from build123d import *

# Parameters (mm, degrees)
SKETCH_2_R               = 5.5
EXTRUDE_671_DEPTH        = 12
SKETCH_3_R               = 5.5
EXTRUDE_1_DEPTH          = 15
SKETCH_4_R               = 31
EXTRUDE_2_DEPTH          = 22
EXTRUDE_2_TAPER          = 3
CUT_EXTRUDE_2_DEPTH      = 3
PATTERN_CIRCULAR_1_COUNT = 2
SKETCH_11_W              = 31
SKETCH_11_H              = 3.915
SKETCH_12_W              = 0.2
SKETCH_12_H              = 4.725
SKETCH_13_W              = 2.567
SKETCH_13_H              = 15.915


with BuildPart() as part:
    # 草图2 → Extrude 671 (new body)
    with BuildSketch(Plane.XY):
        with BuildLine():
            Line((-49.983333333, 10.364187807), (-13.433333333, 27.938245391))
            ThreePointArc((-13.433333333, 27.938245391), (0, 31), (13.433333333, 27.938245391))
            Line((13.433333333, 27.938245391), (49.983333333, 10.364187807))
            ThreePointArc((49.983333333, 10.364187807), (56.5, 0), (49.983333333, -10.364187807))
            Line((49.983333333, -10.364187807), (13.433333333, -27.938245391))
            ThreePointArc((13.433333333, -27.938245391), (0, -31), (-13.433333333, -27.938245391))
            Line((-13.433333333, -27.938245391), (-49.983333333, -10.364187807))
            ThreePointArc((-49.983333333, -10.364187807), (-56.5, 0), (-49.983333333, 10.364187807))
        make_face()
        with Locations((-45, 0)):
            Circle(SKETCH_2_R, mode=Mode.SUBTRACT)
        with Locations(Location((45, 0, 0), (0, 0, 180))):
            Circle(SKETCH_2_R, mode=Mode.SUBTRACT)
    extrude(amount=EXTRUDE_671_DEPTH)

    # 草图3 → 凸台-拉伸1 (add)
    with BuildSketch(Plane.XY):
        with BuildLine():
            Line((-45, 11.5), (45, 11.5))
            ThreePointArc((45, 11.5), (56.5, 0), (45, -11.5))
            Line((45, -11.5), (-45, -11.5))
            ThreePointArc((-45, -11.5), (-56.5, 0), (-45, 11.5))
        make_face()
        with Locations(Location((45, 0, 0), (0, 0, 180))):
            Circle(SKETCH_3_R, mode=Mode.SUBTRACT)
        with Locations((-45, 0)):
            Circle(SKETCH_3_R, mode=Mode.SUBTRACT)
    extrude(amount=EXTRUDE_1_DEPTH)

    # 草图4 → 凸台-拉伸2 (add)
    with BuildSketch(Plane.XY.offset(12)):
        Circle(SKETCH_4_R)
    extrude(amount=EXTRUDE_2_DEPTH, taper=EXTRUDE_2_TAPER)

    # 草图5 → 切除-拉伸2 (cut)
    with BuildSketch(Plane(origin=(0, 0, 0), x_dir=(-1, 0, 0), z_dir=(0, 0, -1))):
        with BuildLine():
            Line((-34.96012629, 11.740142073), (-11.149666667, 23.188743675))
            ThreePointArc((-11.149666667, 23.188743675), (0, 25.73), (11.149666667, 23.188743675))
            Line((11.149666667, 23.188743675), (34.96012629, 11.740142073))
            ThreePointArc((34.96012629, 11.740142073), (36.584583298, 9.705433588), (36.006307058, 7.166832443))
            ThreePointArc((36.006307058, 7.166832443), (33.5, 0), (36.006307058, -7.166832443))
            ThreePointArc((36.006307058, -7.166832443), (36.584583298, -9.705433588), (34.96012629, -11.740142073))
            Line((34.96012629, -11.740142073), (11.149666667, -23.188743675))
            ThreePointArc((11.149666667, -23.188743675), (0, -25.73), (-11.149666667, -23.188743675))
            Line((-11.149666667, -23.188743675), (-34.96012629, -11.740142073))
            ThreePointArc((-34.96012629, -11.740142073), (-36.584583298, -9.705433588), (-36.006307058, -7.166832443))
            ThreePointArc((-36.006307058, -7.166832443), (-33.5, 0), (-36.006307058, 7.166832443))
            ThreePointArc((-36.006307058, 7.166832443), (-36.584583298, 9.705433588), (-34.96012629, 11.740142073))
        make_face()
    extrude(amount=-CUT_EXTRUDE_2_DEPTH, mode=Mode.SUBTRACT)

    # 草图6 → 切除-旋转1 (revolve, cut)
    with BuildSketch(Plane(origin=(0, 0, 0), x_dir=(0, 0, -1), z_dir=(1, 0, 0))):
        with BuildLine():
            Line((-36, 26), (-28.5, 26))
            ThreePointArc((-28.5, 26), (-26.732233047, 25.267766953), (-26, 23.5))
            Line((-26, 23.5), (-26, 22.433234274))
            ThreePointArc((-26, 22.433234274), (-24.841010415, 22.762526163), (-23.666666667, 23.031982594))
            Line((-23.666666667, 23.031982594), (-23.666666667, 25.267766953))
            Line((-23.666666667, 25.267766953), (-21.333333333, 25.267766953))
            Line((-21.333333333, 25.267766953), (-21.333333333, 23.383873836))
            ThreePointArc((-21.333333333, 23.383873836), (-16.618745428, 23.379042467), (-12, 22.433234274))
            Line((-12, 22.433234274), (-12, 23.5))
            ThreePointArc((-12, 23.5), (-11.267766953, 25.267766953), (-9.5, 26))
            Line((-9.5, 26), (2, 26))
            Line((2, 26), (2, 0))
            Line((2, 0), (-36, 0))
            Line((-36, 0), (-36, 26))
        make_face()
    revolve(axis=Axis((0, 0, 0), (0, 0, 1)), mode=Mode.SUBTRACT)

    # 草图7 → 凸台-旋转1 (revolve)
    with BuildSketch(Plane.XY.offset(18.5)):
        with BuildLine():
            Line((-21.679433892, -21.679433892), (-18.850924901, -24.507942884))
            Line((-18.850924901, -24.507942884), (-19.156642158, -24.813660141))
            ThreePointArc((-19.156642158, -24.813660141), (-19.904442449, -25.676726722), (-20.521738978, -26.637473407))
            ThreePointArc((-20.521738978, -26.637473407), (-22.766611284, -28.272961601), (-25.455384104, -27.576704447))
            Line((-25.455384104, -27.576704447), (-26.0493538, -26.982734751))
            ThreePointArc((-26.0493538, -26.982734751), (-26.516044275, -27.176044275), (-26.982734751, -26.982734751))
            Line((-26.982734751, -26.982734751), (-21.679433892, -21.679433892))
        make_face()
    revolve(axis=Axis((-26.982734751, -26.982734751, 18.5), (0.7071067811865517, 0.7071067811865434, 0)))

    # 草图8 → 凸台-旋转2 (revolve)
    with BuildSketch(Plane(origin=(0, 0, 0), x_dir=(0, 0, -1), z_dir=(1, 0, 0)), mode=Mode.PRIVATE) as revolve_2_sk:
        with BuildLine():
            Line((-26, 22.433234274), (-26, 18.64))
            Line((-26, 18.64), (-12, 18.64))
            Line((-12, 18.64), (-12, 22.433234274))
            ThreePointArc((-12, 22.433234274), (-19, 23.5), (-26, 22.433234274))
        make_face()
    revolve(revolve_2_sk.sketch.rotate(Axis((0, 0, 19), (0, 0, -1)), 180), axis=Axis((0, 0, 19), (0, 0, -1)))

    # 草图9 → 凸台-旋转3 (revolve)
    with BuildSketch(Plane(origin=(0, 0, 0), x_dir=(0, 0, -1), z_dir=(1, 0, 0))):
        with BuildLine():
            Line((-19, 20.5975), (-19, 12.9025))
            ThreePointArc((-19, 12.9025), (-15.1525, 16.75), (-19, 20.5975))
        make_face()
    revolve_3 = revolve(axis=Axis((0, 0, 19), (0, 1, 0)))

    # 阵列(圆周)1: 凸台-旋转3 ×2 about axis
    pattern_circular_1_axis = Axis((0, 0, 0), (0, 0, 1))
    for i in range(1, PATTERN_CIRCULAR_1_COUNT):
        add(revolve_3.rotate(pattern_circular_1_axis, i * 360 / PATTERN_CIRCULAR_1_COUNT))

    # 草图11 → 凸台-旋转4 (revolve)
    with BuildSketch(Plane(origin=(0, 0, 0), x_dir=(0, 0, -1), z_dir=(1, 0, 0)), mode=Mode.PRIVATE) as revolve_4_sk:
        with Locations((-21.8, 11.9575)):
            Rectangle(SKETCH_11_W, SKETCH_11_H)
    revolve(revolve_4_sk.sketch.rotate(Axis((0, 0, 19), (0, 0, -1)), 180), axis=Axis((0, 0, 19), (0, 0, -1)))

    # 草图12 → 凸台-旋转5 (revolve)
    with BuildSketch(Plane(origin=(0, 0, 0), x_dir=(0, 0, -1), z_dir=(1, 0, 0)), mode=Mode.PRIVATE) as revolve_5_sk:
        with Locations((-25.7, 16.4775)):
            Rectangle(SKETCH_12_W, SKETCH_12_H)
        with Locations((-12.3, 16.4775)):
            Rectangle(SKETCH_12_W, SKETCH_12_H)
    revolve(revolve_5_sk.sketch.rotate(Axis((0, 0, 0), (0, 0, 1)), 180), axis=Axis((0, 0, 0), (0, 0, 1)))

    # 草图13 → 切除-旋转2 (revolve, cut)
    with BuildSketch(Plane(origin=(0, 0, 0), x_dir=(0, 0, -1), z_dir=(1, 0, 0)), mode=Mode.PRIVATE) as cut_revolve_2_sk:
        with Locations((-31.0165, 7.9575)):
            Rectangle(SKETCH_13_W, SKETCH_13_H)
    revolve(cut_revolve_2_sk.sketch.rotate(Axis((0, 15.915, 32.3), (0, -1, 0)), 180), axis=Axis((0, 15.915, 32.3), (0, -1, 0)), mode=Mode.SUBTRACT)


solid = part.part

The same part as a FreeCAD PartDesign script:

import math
import FreeCAD as App
import Part
import Sketcher
from FreeCAD import Vector
Q = App.Units.Quantity


def add_polygon(sketch, points):
    """Adds a closed chain of lines whose ends are joined by coincident constraints."""
    first, n = sketch.GeometryCount, len(points)
    for a, b in zip(points, points[1:] + points[:1]):
        sketch.addGeometry(Part.LineSegment(App.Vector(*a, 0), App.Vector(*b, 0)), False)
    for i in range(n):
        sketch.addConstraint(Sketcher.Constraint("Coincident", first + i, 2, first + (i + 1) % n, 1))

doc = App.newDocument("Part")
body = doc.addObject("PartDesign::Body", "Body")

# Sketch on XY plane
sketch1 = body.newObject("Sketcher::SketchObject", "Sketch")
sketch1.AttachmentSupport = (doc.getObject("XY_Plane"), [""])
sketch1.MapMode = "FlatFace"
sketch1.addGeometry(Part.LineSegment(Vector(-13.433333, 27.938245, 0), Vector(-49.983333, 10.364188, 0)), False)
sketch1.addGeometry(Part.ArcOfCircle(Part.Circle(Vector(-45, 0, 0), Vector(0, 0, 1), 11.5), math.radians(115.679289), math.radians(244.320711)), False)
sketch1.addGeometry(Part.LineSegment(Vector(-49.983333, -10.364188, 0), Vector(-13.433333, -27.938245, 0)), False)
sketch1.addGeometry(Part.ArcOfCircle(Part.Circle(Vector(0, 0, 0), Vector(0, 0, 1), 31), math.radians(-115.679289), math.radians(-64.320711)), False)
sketch1.addGeometry(Part.LineSegment(Vector(13.433333, -27.938245, 0), Vector(49.983333, -10.364188, 0)), False)
sketch1.addGeometry(Part.ArcOfCircle(Part.Circle(Vector(45, 0, 0), Vector(0, 0, 1), 11.5), math.radians(-64.320711), math.radians(64.320711)), False)
sketch1.addGeometry(Part.LineSegment(Vector(49.983333, 10.364188, 0), Vector(13.433333, 27.938245, 0)), False)
sketch1.addGeometry(Part.ArcOfCircle(Part.Circle(Vector(0, 0, 0), Vector(0, 0, 1), 31), math.radians(64.320711), math.radians(115.679289)), False)
sketch1.addGeometry(Part.Circle(Vector(45, 0, 0), Vector(0, 0, 1), 5.5), False)
sketch1.addGeometry(Part.Circle(Vector(-45, 0, 0), Vector(0, 0, 1), 5.5), False)
sketch1.addConstraint(Sketcher.Constraint("Tangent", 0, 2, 1, 1))
sketch1.addConstraint(Sketcher.Constraint("Tangent", 1, 2, 2, 1))
sketch1.addConstraint(Sketcher.Constraint("Tangent", 2, 2, 3, 1))
sketch1.addConstraint(Sketcher.Constraint("Tangent", 3, 2, 4, 1))
sketch1.addConstraint(Sketcher.Constraint("Tangent", 4, 2, 5, 1))
sketch1.addConstraint(Sketcher.Constraint("Tangent", 5, 2, 6, 1))
sketch1.addConstraint(Sketcher.Constraint("Tangent", 6, 2, 7, 1))
sketch1.addConstraint(Sketcher.Constraint("Tangent", 7, 2, 0, 1))
sketch1.addConstraint(Sketcher.Constraint("Coincident", 3, 3, -1, 1))
sketch1.addConstraint(Sketcher.Constraint("Coincident", 7, 3, -1, 1))
sketch1.addConstraint(Sketcher.Constraint("Coincident", 8, 3, 5, 3))
sketch1.addConstraint(Sketcher.Constraint("Coincident", 9, 3, 1, 3))
sketch1.addConstraint(Sketcher.Constraint("Equal", 1, 5))
sketch1.addConstraint(Sketcher.Constraint("Equal", 3, 7))
sketch1.addConstraint(Sketcher.Constraint("Equal", 8, 9))
sketch1.addConstraint(Sketcher.Constraint("Symmetric", 1, 3, 5, 3, -1, 1))
sketch1.addConstraint(Sketcher.Constraint("PointOnObject", 1, 3, -1))
sketch1.addConstraint(Sketcher.Constraint("Diameter", 8, Q("11 mm")))
sketch1.addConstraint(Sketcher.Constraint("Radius", 3, Q("31 mm")))
sketch1.addConstraint(Sketcher.Constraint("Radius", 1, Q("11.5 mm")))
sketch1.addConstraint(Sketcher.Constraint("DistanceX", 1, 3, -1, 1, Q("45 mm")))
pad1 = body.newObject("PartDesign::Pad", "Pad")
pad1.Profile = sketch1
pad1.Length = 12

# Sketch on XY plane
sketch2 = body.newObject("Sketcher::SketchObject", "Sketch001")
sketch2.AttachmentSupport = (doc.getObject("XY_Plane"), [""])
sketch2.MapMode = "FlatFace"
sketch2.addGeometry(Part.LineSegment(Vector(45, 11.5, 0), Vector(-45, 11.5, 0)), False)
sketch2.addGeometry(Part.ArcOfCircle(Part.Circle(Vector(-45, 0, 0), Vector(0, 0, 1), 11.5), math.radians(90), math.radians(270)), False)
sketch2.addGeometry(Part.LineSegment(Vector(-45, -11.5, 0), Vector(45, -11.5, 0)), False)
sketch2.addGeometry(Part.ArcOfCircle(Part.Circle(Vector(45, 0, 0), Vector(0, 0, 1), 11.5), math.radians(-90), math.radians(90)), False)
sketch2.addGeometry(Part.Circle(Vector(45, 0, 0), Vector(0, 0, 1), 5.5), False)
sketch2.addGeometry(Part.Circle(Vector(-45, 0, 0), Vector(0, 0, 1), 5.5), False)
sketch2.addConstraint(Sketcher.Constraint("Tangent", 0, 2, 1, 1))
sketch2.addConstraint(Sketcher.Constraint("Tangent", 1, 2, 2, 1))
sketch2.addConstraint(Sketcher.Constraint("Tangent", 2, 2, 3, 1))
sketch2.addConstraint(Sketcher.Constraint("Tangent", 3, 2, 0, 1))
sketch2.addConstraint(Sketcher.Constraint("Horizontal", 0))
sketch2.addConstraint(Sketcher.Constraint("Horizontal", 2))
sketch2.addConstraint(Sketcher.Constraint("Coincident", 4, 3, 3, 3))
sketch2.addConstraint(Sketcher.Constraint("Coincident", 5, 3, 1, 3))
sketch2.addConstraint(Sketcher.Constraint("Equal", 4, 5))
sketch2.addConstraint(Sketcher.Constraint("Symmetric", 1, 3, 3, 3, -1, 1))
sketch2.addConstraint(Sketcher.Constraint("Diameter", 4, Q("11 mm")))
sketch2.addConstraint(Sketcher.Constraint("Radius", 1, Q("11.5 mm")))
sketch2.addConstraint(Sketcher.Constraint("DistanceX", 0, 2, 0, 1, Q("90 mm")))
pad2 = body.newObject("PartDesign::Pad", "Pad001")
pad2.Profile = sketch2
pad2.Length = 15

# Sketch on XY plane
sketch3 = body.newObject("Sketcher::SketchObject", "Sketch002")
sketch3.AttachmentSupport = (doc.getObject("XY_Plane"), [""])
sketch3.MapMode = "FlatFace"
sketch3.AttachmentOffset = App.Placement(Vector(0, 0, 12), App.Rotation())
sketch3.addGeometry(Part.Circle(Vector(0, 0, 0), Vector(0, 0, 1), 31), False)
sketch3.addConstraint(Sketcher.Constraint("Coincident", 0, 3, -1, 1))
sketch3.addConstraint(Sketcher.Constraint("Diameter", 0, Q("62 mm")))
pad3 = body.newObject("PartDesign::Pad", "Pad002")
pad3.Profile = sketch3
pad3.Length = 22
pad3.TaperAngle = -3

# Sketch on XY plane
sketch4 = body.newObject("Sketcher::SketchObject", "Sketch003")
sketch4.AttachmentSupport = (doc.getObject("XY_Plane"), [""])
sketch4.MapMode = "FlatFace"
sketch4.addGeometry(Part.LineSegment(Vector(11.149667, 23.188744, 0), Vector(34.960126, 11.740142, 0)), False)
sketch4.addGeometry(Part.ArcOfCircle(Part.Circle(Vector(33.660126, 9.036441, 0), Vector(0, 0, 1), 3), math.radians(-38.550401), math.radians(64.320711)), False)
sketch4.addGeometry(Part.ArcOfCircle(Part.Circle(Vector(45, 0, 0), Vector(0, 0, 1), 11.5), math.radians(141.449599), math.radians(218.550401)), False)
sketch4.addGeometry(Part.ArcOfCircle(Part.Circle(Vector(33.660126, -9.036441, 0), Vector(0, 0, 1), 3), math.radians(-64.320711), math.radians(38.550401)), False)
sketch4.addGeometry(Part.LineSegment(Vector(34.960126, -11.740142, 0), Vector(11.149667, -23.188744, 0)), False)
sketch4.addGeometry(Part.ArcOfCircle(Part.Circle(Vector(0, 0, 0), Vector(0, 0, 1), 25.73), math.radians(-115.679289), math.radians(-64.320711)), False)
sketch4.addGeometry(Part.LineSegment(Vector(-11.149667, -23.188744, 0), Vector(-34.960126, -11.740142, 0)), False)
sketch4.addGeometry(Part.ArcOfCircle(Part.Circle(Vector(-33.660126, -9.036441, 0), Vector(0, 0, 1), 3), math.radians(141.449599), math.radians(244.320711)), False)
sketch4.addGeometry(Part.ArcOfCircle(Part.Circle(Vector(-45, 0, 0), Vector(0, 0, 1), 11.5), math.radians(-38.550401), math.radians(38.550401)), False)
sketch4.addGeometry(Part.ArcOfCircle(Part.Circle(Vector(-33.660126, 9.036441, 0), Vector(0, 0, 1), 3), math.radians(115.679289), math.radians(218.550401)), False)
sketch4.addGeometry(Part.LineSegment(Vector(-34.960126, 11.740142, 0), Vector(-11.149667, 23.188744, 0)), False)
sketch4.addGeometry(Part.ArcOfCircle(Part.Circle(Vector(0, 0, 0), Vector(0, 0, 1), 25.73), math.radians(64.320711), math.radians(115.679289)), False)
sketch4.addConstraint(Sketcher.Constraint("Tangent", 0, 2, 1, 2))
sketch4.addConstraint(Sketcher.Constraint("Tangent", 1, 1, 2, 1))
sketch4.addConstraint(Sketcher.Constraint("Tangent", 2, 2, 3, 2))
sketch4.addConstraint(Sketcher.Constraint("Tangent", 3, 1, 4, 1))
sketch4.addConstraint(Sketcher.Constraint("Tangent", 4, 2, 5, 2))
sketch4.addConstraint(Sketcher.Constraint("Tangent", 5, 1, 6, 1))
sketch4.addConstraint(Sketcher.Constraint("Tangent", 6, 2, 7, 2))
sketch4.addConstraint(Sketcher.Constraint("Tangent", 7, 1, 8, 1))
sketch4.addConstraint(Sketcher.Constraint("Tangent", 8, 2, 9, 2))
sketch4.addConstraint(Sketcher.Constraint("Tangent", 9, 1, 10, 1))
sketch4.addConstraint(Sketcher.Constraint("Tangent", 10, 2, 11, 2))
sketch4.addConstraint(Sketcher.Constraint("Tangent", 11, 1, 0, 1))
sketch4.addConstraint(Sketcher.Constraint("Coincident", 5, 3, -1, 1))
sketch4.addConstraint(Sketcher.Constraint("Coincident", 11, 3, -1, 1))
sketch4.addConstraint(Sketcher.Constraint("Equal", 1, 3))
sketch4.addConstraint(Sketcher.Constraint("Equal", 3, 7))
sketch4.addConstraint(Sketcher.Constraint("Equal", 2, 8))
sketch4.addConstraint(Sketcher.Constraint("Equal", 7, 9))
sketch4.addConstraint(Sketcher.Constraint("Equal", 5, 11))
sketch4.addConstraint(Sketcher.Constraint("Symmetric", 1, 3, 7, 3, -1, 1))
sketch4.addConstraint(Sketcher.Constraint("Symmetric", 3, 3, 9, 3, -1, 1))
sketch4.addConstraint(Sketcher.Constraint("Symmetric", 3, 3, 7, 3, -2))
sketch4.addConstraint(Sketcher.Constraint("Radius", 1, Q("3 mm")))
sketch4.addConstraint(Sketcher.Constraint("Radius", 2, Q("11.5 mm")))
sketch4.addConstraint(Sketcher.Constraint("Radius", 5, Q("25.73 mm")))
sketch4.addConstraint(Sketcher.Constraint("DistanceX", -1, 1, 2, 3, Q("45 mm")))
sketch4.addConstraint(Sketcher.Constraint("DistanceX", 1, 3, 0, 2, Q("1.3 mm")))
pocket1 = body.newObject("PartDesign::Pocket", "Pocket")
pocket1.Profile = sketch4
pocket1.Length = 3
pocket1.Reversed = True

# Sketch on YZ plane
sketch5 = body.newObject("Sketcher::SketchObject", "Sketch004")
sketch5.AttachmentSupport = (doc.getObject("YZ_Plane"), [""])
sketch5.MapMode = "FlatFace"
sketch5.addGeometry(Part.LineSegment(Vector(26, 28.5, 0), Vector(26, 36, 0)), False)
sketch5.addGeometry(Part.LineSegment(Vector(26, 36, 0), Vector(0, 36, 0)), False)
sketch5.addGeometry(Part.LineSegment(Vector(0, 36, 0), Vector(0, -2, 0)), False)
sketch5.addGeometry(Part.LineSegment(Vector(0, -2, 0), Vector(26, -2, 0)), False)
sketch5.addGeometry(Part.LineSegment(Vector(26, -2, 0), Vector(26, 9.5, 0)), False)
sketch5.addGeometry(Part.ArcOfCircle(Part.Circle(Vector(23.5, 9.5, 0), Vector(0, 0, 1), 2.5), math.radians(0), math.radians(90)), False)
sketch5.addGeometry(Part.LineSegment(Vector(23.5, 12, 0), Vector(22.433234, 12, 0)), False)
sketch5.addGeometry(Part.ArcOfCircle(Part.Circle(Vector(0, 19, 0), Vector(0, 0, 1), 23.5), math.radians(-17.329856), math.radians(5.698332)), False)
sketch5.addGeometry(Part.LineSegment(Vector(23.383874, 21.333333, 0), Vector(25.267767, 21.333333, 0)), False)
sketch5.addGeometry(Part.LineSegment(Vector(25.267767, 21.333333, 0), Vector(25.267767, 23.666667, 0)), False)
sketch5.addGeometry(Part.LineSegment(Vector(25.267767, 23.666667, 0), Vector(23.031983, 23.666667, 0)), False)
sketch5.addGeometry(Part.ArcOfCircle(Part.Circle(Vector(0, 19, 0), Vector(0, 0, 1), 23.5), math.radians(11.454025), math.radians(17.329856)), False)
sketch5.addGeometry(Part.LineSegment(Vector(22.433234, 26, 0), Vector(23.5, 26, 0)), False)
sketch5.addGeometry(Part.ArcOfCircle(Part.Circle(Vector(23.5, 28.5, 0), Vector(0, 0, 1), 2.5), math.radians(-90), math.radians(0)), False)
sketch5.addConstraint(Sketcher.Constraint("Coincident", 0, 2, 1, 1))
sketch5.addConstraint(Sketcher.Constraint("Coincident", 1, 2, 2, 1))
sketch5.addConstraint(Sketcher.Constraint("Coincident", 2, 2, 3, 1))
sketch5.addConstraint(Sketcher.Constraint("Coincident", 3, 2, 4, 1))
sketch5.addConstraint(Sketcher.Constraint("Tangent", 4, 2, 5, 1))
sketch5.addConstraint(Sketcher.Constraint("Tangent", 5, 2, 6, 1))
sketch5.addConstraint(Sketcher.Constraint("Coincident", 6, 2, 7, 1))
sketch5.addConstraint(Sketcher.Constraint("Coincident", 7, 2, 8, 1))
sketch5.addConstraint(Sketcher.Constraint("Coincident", 8, 2, 9, 1))
sketch5.addConstraint(Sketcher.Constraint("Coincident", 9, 2, 10, 1))
sketch5.addConstraint(Sketcher.Constraint("Coincident", 10, 2, 11, 1))
sketch5.addConstraint(Sketcher.Constraint("Coincident", 11, 2, 12, 1))
sketch5.addConstraint(Sketcher.Constraint("Tangent", 12, 2, 13, 1))
sketch5.addConstraint(Sketcher.Constraint("Tangent", 13, 2, 0, 1))
sketch5.addConstraint(Sketcher.Constraint("Vertical", 0))
sketch5.addConstraint(Sketcher.Constraint("Horizontal", 1))
sketch5.addConstraint(Sketcher.Constraint("Vertical", 2))
sketch5.addConstraint(Sketcher.Constraint("Horizontal", 3))
sketch5.addConstraint(Sketcher.Constraint("Vertical", 4))
sketch5.addConstraint(Sketcher.Constraint("Horizontal", 6))
sketch5.addConstraint(Sketcher.Constraint("Horizontal", 8))
sketch5.addConstraint(Sketcher.Constraint("Vertical", 9))
sketch5.addConstraint(Sketcher.Constraint("Horizontal", 10))
sketch5.addConstraint(Sketcher.Constraint("Horizontal", 12))
sketch5.addConstraint(Sketcher.Constraint("Coincident", 11, 3, 7, 3))
sketch5.addConstraint(Sketcher.Constraint("Equal", 7, 11))
sketch5.addConstraint(Sketcher.Constraint("Equal", 5, 13))
sketch5.addConstraint(Sketcher.Constraint("PointOnObject", 7, 3, -2))
sketch5.addConstraint(Sketcher.Constraint("PointOnObject", 1, 2, -2))
sketch5.addConstraint(Sketcher.Constraint("Vertical", 5, 3, 13, 3))
sketch5.addConstraint(Sketcher.Constraint("Vertical", 6, 2, 11, 2))
sketch5.addConstraint(Sketcher.Constraint("Radius", 5, Q("2.5 mm")))
sketch5.addConstraint(Sketcher.Constraint("Radius", 7, Q("23.5 mm")))
sketch5.addConstraint(Sketcher.Constraint("DistanceX", 1, 2, 1, 1, Q("26 mm")))
sketch5.addConstraint(Sketcher.Constraint("DistanceY", 2, 2, 2, 1, Q("38 mm")))
sketch5.addConstraint(Sketcher.Constraint("DistanceY", 0, 1, 0, 2, Q("7.5 mm")))
sketch5.addConstraint(Sketcher.Constraint("DistanceY", 4, 1, 4, 2, Q("11.5 mm")))
sketch5.addConstraint(Sketcher.Constraint("DistanceY", -1, 1, 7, 3, Q("19 mm")))
sketch5.addConstraint(Sketcher.Constraint("DistanceX", 8, 1, 8, 2, Q("1.883893 mm")))
sketch5.addConstraint(Sketcher.Constraint("DistanceX", 10, 2, 10, 1, Q("2.235784 mm")))
sketch5.addConstraint(Sketcher.Constraint("DistanceY", 9, 1, 9, 2, Q("2.333333 mm")))
groove = body.newObject("PartDesign::Groove", "Groove")
groove.Profile = sketch5
groove.ReferenceAxis = (sketch5, ["V_Axis"])
groove.Angle = 360

# Sketch on XY plane
sketch6 = body.newObject("Sketcher::SketchObject", "Sketch005")
sketch6.AttachmentSupport = (doc.getObject("XY_Plane"), [""])
sketch6.MapMode = "FlatFace"
sketch6.AttachmentOffset = App.Placement(Vector(0, 0, 18.5), App.Rotation())
sketch6.addGeometry(Part.LineSegment(Vector(-18.850925, -24.507943, 0), Vector(-21.679434, -21.679434, 0)), False)
sketch6.addGeometry(Part.LineSegment(Vector(-21.679434, -21.679434, 0), Vector(-26.982735, -26.982735, 0)), False)
sketch6.addGeometry(Part.ArcOfCircle(Part.Circle(Vector(-26.516044, -26.516044, 0), Vector(0, 0, 1), 0.66), math.radians(-135), math.radians(-45)), False)
sketch6.addGeometry(Part.LineSegment(Vector(-26.049354, -26.982735, 0), Vector(-25.455384, -27.576704, 0)), False)
sketch6.addGeometry(Part.ArcOfCircle(Part.Circle(Vector(-23.374407, -25.080301, 0), Vector(0, 0, 1), 3.25), math.radians(-129.814251), math.radians(-28.628604)), False)
sketch6.addGeometry(Part.ArcOfCircle(Part.Circle(Vector(-13.499788, -30.470514, 0), Vector(0, 0, 1), 8), math.radians(135), math.radians(151.371396)), False)
sketch6.addGeometry(Part.LineSegment(Vector(-19.156642, -24.81366, 0), Vector(-18.850925, -24.507943, 0)), False)
sketch6.addGeometry(Part.LineSegment(Vector(-26.982735, -26.982735, 0), Vector(-21.679434, -21.679434, 0)), True)  # axis
sketch6.addConstraint(Sketcher.Constraint("Coincident", 0, 2, 1, 1))
sketch6.addConstraint(Sketcher.Constraint("Coincident", 1, 2, 2, 1))
sketch6.addConstraint(Sketcher.Constraint("Coincident", 2, 2, 3, 1))
sketch6.addConstraint(Sketcher.Constraint("Coincident", 3, 2, 4, 1))
sketch6.addConstraint(Sketcher.Constraint("Tangent", 4, 2, 5, 2))
sketch6.addConstraint(Sketcher.Constraint("Tangent", 5, 1, 6, 1))
sketch6.addConstraint(Sketcher.Constraint("Coincident", 6, 2, 0, 1))
sketch6.addConstraint(Sketcher.Constraint("Coincident", 7, 1, 1, 2))
sketch6.addConstraint(Sketcher.Constraint("Coincident", 7, 2, 0, 2))
sketch6.addConstraint(Sketcher.Constraint("Perpendicular", 0, 1))
sketch6.addConstraint(Sketcher.Constraint("Perpendicular", 1, 3))
sketch6.addConstraint(Sketcher.Constraint("Perpendicular", 3, 6))
sketch6.addConstraint(Sketcher.Constraint("Horizontal", 1, 2, 2, 2))
sketch6.addConstraint(Sketcher.Constraint("Radius", 5, Q("8 mm")))
sketch6.addConstraint(Sketcher.Constraint("Angle", 0, Q("135 deg")))
sketch6.addConstraint(Sketcher.Constraint("Radius", 2, Q("0.66 mm")))
sketch6.addConstraint(Sketcher.Constraint("Radius", 4, Q("3.25 mm")))
sketch6.addConstraint(Sketcher.Constraint("Distance", 1, Q("7.5 mm")))
sketch6.addConstraint(Sketcher.Constraint("Distance", 3, Q("0.84 mm")))
sketch6.addConstraint(Sketcher.Constraint("DistanceY", 4, 3, -1, 1, Q("25.080301 mm")))
sketch6.addConstraint(Sketcher.Constraint("Distance", 6, Q("0.432349 mm")))
sketch6.addConstraint(Sketcher.Constraint("DistanceX", 4, 2, -1, 1, Q("20.521739 mm")))
sketch6.addConstraint(Sketcher.Constraint("DistanceY", 5, 1, -1, 1, Q("24.81366 mm")))
sketch6.addConstraint(Sketcher.Constraint("DistanceY", 5, 3, 2, 3, Q("3.95447 mm")))
revolution = body.newObject("PartDesign::Revolution", "Revolution")
revolution.Profile = sketch6
revolution.ReferenceAxis = (sketch6, ["Axis0"])
revolution.Angle = 360

# Sketch on YZ plane
sketch7 = body.newObject("Sketcher::SketchObject", "Sketch006")
sketch7.AttachmentSupport = (doc.getObject("YZ_Plane"), [""])
sketch7.MapMode = "FlatFace"
sketch7.addGeometry(Part.LineSegment(Vector(22.433234, 26, 0), Vector(18.64, 26, 0)), False)
sketch7.addGeometry(Part.LineSegment(Vector(18.64, 26, 0), Vector(18.64, 12, 0)), False)
sketch7.addGeometry(Part.LineSegment(Vector(18.64, 12, 0), Vector(22.433234, 12, 0)), False)
sketch7.addGeometry(Part.ArcOfCircle(Part.Circle(Vector(0, 19, 0), Vector(0, 0, 1), 23.5), math.radians(-17.329856), math.radians(17.329856)), False)
sketch7.addConstraint(Sketcher.Constraint("Coincident", 0, 2, 1, 1))
sketch7.addConstraint(Sketcher.Constraint("Coincident", 1, 2, 2, 1))
sketch7.addConstraint(Sketcher.Constraint("Coincident", 2, 2, 3, 1))
sketch7.addConstraint(Sketcher.Constraint("Coincident", 3, 2, 0, 1))
sketch7.addConstraint(Sketcher.Constraint("Horizontal", 0))
sketch7.addConstraint(Sketcher.Constraint("Vertical", 1))
sketch7.addConstraint(Sketcher.Constraint("Horizontal", 2))
sketch7.addConstraint(Sketcher.Constraint("PointOnObject", 3, 3, -2))
sketch7.addConstraint(Sketcher.Constraint("Vertical", 2, 2, 3, 2))
sketch7.addConstraint(Sketcher.Constraint("Radius", 3, Q("23.5 mm")))
sketch7.addConstraint(Sketcher.Constraint("DistanceY", 1, 2, 1, 1, Q("14 mm")))
sketch7.addConstraint(Sketcher.Constraint("DistanceY", -1, 1, 3, 3, Q("19 mm")))
sketch7.addConstraint(Sketcher.Constraint("DistanceX", -1, 1, 0, 2, Q("18.64 mm")))
revolution2 = body.newObject("PartDesign::Revolution", "Revolution001")
revolution2.Profile = sketch7
revolution2.ReferenceAxis = (sketch7, ["V_Axis"])
revolution2.Angle = 360

# Sketch on YZ plane
sketch8 = body.newObject("Sketcher::SketchObject", "Sketch007")
sketch8.AttachmentSupport = (doc.getObject("YZ_Plane"), [""])
sketch8.MapMode = "FlatFace"
sketch8.addGeometry(Part.LineSegment(Vector(20.5975, 19, 0), Vector(12.9025, 19, 0)), False)
sketch8.addGeometry(Part.ArcOfCircle(Part.Circle(Vector(16.75, 19, 0), Vector(0, 0, 1), 3.8475), math.radians(180), math.radians(360)), False)
sketch8.addGeometry(Part.LineSegment(Vector(12.9025, 19, 0), Vector(20.5975, 19, 0)), True)  # axis
sketch8.addConstraint(Sketcher.Constraint("Coincident", 0, 1, 1, 2))
sketch8.addConstraint(Sketcher.Constraint("Coincident", 1, 1, 0, 2))
sketch8.addConstraint(Sketcher.Constraint("Horizontal", 0))
sketch8.addConstraint(Sketcher.Constraint("Horizontal", 2))
sketch8.addConstraint(Sketcher.Constraint("Coincident", 2, 1, 1, 1))
sketch8.addConstraint(Sketcher.Constraint("Horizontal", 1, 3, 0, 1))
sketch8.addConstraint(Sketcher.Constraint("Equal", 0, 2))
sketch8.addConstraint(Sketcher.Constraint("DistanceY", -1, 1, 1, 3, Q("19 mm")))
sketch8.addConstraint(Sketcher.Constraint("Radius", 1, Q("3.8475 mm")))
sketch8.addConstraint(Sketcher.Constraint("DistanceX", -1, 1, 1, 3, Q("16.75 mm")))
revolution3 = body.newObject("PartDesign::Revolution", "Revolution002")
revolution3.Profile = sketch8
revolution3.ReferenceAxis = (sketch8, ["Axis0"])
revolution3.Angle = 360
doc.recompute()

polarpattern = body.newObject("PartDesign::PolarPattern", "PolarPattern")
polarpattern.Originals = [revolution3]
polarpattern.Axis = (doc.getObject("Z_Axis"), [""])
polarpattern.Angle = 360
polarpattern.Occurrences = 2
body.Tip = polarpattern

# Sketch on YZ plane
sketch9 = body.newObject("Sketcher::SketchObject", "Sketch008")
sketch9.AttachmentSupport = (doc.getObject("YZ_Plane"), [""])
sketch9.MapMode = "FlatFace"
add_polygon(sketch9, [(13.915, 37.3), (10, 37.3), (10, 6.3), (13.915, 6.3)])  # lines 0-3
sketch9.addConstraint(Sketcher.Constraint("Horizontal", 0))
sketch9.addConstraint(Sketcher.Constraint("Vertical", 1))
sketch9.addConstraint(Sketcher.Constraint("Horizontal", 2))
sketch9.addConstraint(Sketcher.Constraint("Vertical", 3))
sketch9.addConstraint(Sketcher.Constraint("DistanceY", 1, 2, 1, 1, Q("31 mm")))
sketch9.addConstraint(Sketcher.Constraint("DistanceX", -1, 1, 0, 2, Q("10 mm")))
sketch9.addConstraint(Sketcher.Constraint("DistanceY", -1, 1, 0, 2, Q("37.3 mm")))
sketch9.addConstraint(Sketcher.Constraint("DistanceX", 0, 2, 0, 1, Q("3.915 mm")))
revolution4 = body.newObject("PartDesign::Revolution", "Revolution003")
revolution4.Profile = sketch9
revolution4.ReferenceAxis = (sketch9, ["V_Axis"])
revolution4.Angle = 360

# Sketch on YZ plane
sketch10 = body.newObject("Sketcher::SketchObject", "Sketch009")
sketch10.AttachmentSupport = (doc.getObject("YZ_Plane"), [""])
sketch10.MapMode = "FlatFace"
add_polygon(sketch10, [(18.84, 25.8), (14.115, 25.8), (14.115, 25.6), (18.84, 25.6)])  # lines 0-3
add_polygon(sketch10, [(18.84, 12.4), (14.115, 12.4), (14.115, 12.2), (18.84, 12.2)])  # lines 4-7
sketch10.addConstraint(Sketcher.Constraint("Horizontal", 0))
sketch10.addConstraint(Sketcher.Constraint("Vertical", 1))
sketch10.addConstraint(Sketcher.Constraint("Horizontal", 2))
sketch10.addConstraint(Sketcher.Constraint("Vertical", 3))
sketch10.addConstraint(Sketcher.Constraint("Horizontal", 4))
sketch10.addConstraint(Sketcher.Constraint("Vertical", 5))
sketch10.addConstraint(Sketcher.Constraint("Horizontal", 6))
sketch10.addConstraint(Sketcher.Constraint("Vertical", 7))
sketch10.addConstraint(Sketcher.Constraint("Vertical", 1, 2, 4, 2))
sketch10.addConstraint(Sketcher.Constraint("Vertical", 3, 2, 6, 2))
sketch10.addConstraint(Sketcher.Constraint("Equal", 3, 5))
sketch10.addConstraint(Sketcher.Constraint("DistanceY", 1, 2, 1, 1, Q("0.2 mm")))
sketch10.addConstraint(Sketcher.Constraint("DistanceY", -1, 1, 0, 2, Q("25.8 mm")))
sketch10.addConstraint(Sketcher.Constraint("DistanceY", -1, 1, 4, 2, Q("12.4 mm")))
sketch10.addConstraint(Sketcher.Constraint("DistanceX", 0, 2, 0, 1, Q("4.725 mm")))
sketch10.addConstraint(Sketcher.Constraint("DistanceX", -1, 1, 2, 2, Q("18.84 mm")))
revolution5 = body.newObject("PartDesign::Revolution", "Revolution004")
revolution5.Profile = sketch10
revolution5.ReferenceAxis = (sketch10, ["V_Axis"])
revolution5.Angle = 360

# Sketch on YZ plane
sketch11 = body.newObject("Sketcher::SketchObject", "Sketch010")
sketch11.AttachmentSupport = (doc.getObject("YZ_Plane"), [""])
sketch11.MapMode = "FlatFace"
add_polygon(sketch11, [(15.915, 32.3), (0, 32.3), (0, 29.733), (15.915, 29.733)])  # lines 0-3
sketch11.addGeometry(Part.LineSegment(Vector(15.915, 32.3, 0), Vector(0, 32.3, 0)), True)  # axis
sketch11.addConstraint(Sketcher.Constraint("Horizontal", 0))
sketch11.addConstraint(Sketcher.Constraint("Vertical", 1))
sketch11.addConstraint(Sketcher.Constraint("Horizontal", 2))
sketch11.addConstraint(Sketcher.Constraint("Vertical", 3))
sketch11.addConstraint(Sketcher.Constraint("Horizontal", 4))
sketch11.addConstraint(Sketcher.Constraint("Coincident", 4, 1, 3, 2))
sketch11.addConstraint(Sketcher.Constraint("PointOnObject", 0, 2, -2))
sketch11.addConstraint(Sketcher.Constraint("PointOnObject", 4, 2, -2))
sketch11.addConstraint(Sketcher.Constraint("DistanceY", -1, 1, 0, 2, Q("32.3 mm")))
sketch11.addConstraint(Sketcher.Constraint("DistanceX", 0, 2, 0, 1, Q("15.915 mm")))
sketch11.addConstraint(Sketcher.Constraint("DistanceY", 1, 2, 1, 1, Q("2.567 mm")))
groove2 = body.newObject("PartDesign::Groove", "Groove001")
groove2.Profile = sketch11
groove2.ReferenceAxis = (sketch11, ["Axis0"])
groove2.Angle = 360

doc.recompute()
